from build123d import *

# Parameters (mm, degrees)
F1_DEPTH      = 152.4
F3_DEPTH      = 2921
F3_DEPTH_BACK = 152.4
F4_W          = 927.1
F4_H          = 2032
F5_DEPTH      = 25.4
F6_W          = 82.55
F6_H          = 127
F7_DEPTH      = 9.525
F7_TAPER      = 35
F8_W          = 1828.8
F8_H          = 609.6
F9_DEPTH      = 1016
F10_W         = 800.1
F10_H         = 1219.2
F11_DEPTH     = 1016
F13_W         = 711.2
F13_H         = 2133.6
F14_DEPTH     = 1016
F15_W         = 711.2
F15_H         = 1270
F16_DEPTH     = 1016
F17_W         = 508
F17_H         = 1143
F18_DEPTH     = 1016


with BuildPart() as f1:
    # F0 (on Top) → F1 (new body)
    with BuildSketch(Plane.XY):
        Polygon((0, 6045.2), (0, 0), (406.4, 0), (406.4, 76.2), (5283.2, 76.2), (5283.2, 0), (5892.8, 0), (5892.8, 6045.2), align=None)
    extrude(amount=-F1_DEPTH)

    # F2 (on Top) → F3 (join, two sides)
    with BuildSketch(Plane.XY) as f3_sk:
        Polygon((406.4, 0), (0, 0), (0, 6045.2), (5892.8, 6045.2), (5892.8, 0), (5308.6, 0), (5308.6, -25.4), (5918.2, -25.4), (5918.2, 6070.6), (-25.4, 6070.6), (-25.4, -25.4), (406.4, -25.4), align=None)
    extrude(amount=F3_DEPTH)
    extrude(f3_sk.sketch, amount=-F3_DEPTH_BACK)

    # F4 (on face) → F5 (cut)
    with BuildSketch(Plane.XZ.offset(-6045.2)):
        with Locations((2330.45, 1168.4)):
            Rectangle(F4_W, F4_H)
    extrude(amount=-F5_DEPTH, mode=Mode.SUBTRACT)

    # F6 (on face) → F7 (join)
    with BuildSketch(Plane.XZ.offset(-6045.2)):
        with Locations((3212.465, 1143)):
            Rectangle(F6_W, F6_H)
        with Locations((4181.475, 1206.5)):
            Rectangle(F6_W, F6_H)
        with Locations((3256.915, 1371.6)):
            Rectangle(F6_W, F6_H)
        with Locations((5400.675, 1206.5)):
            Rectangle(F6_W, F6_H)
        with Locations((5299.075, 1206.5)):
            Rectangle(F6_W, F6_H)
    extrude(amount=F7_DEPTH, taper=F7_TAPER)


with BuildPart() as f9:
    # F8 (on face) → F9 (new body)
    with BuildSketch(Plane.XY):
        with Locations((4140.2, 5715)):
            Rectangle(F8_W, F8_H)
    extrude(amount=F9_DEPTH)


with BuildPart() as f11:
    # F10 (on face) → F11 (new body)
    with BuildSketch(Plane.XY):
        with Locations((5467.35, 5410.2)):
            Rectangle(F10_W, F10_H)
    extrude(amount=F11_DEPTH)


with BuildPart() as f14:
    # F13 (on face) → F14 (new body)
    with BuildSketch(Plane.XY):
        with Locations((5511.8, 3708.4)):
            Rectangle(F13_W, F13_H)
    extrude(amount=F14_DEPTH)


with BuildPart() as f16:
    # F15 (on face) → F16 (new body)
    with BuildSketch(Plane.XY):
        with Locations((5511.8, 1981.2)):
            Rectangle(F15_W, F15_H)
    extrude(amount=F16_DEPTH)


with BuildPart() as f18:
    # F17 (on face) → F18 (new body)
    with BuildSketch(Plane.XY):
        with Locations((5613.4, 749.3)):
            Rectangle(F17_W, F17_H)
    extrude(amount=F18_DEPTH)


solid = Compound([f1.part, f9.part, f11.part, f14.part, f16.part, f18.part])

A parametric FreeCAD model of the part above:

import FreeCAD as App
import Part
import Sketcher
Q = App.Units.Quantity

doc = App.newDocument("Part")
body = doc.addObject("PartDesign::Body", "Body")

# Sketch on XY plane
sketch1 = doc.addObject("Sketcher::SketchObject", "Sketch")
body.addObject(sketch1)
sketch1.AttachmentSupport = (doc.XY_Plane, [""])
sketch1.MapMode = "FlatFace"
sketch1.addGeometry([
    Part.LineSegment(App.Vector(0, 6045.2, 0), App.Vector(0, 0, 0)),  # 0
    Part.LineSegment(App.Vector(0, 0, 0), App.Vector(406.4, 0, 0)),  # 1
    Part.LineSegment(App.Vector(406.4, 0, 0), App.Vector(406.4, 76.2, 0)),  # 2
    Part.LineSegment(App.Vector(406.4, 76.2, 0), App.Vector(5283.2, 76.2, 0)),  # 3
    Part.LineSegment(App.Vector(5283.2, 76.2, 0), App.Vector(5283.2, 0, 0)),  # 4
    Part.LineSegment(App.Vector(5283.2, 0, 0), App.Vector(5892.8, 0, 0)),  # 5
    Part.LineSegment(App.Vector(5892.8, 0, 0), App.Vector(5892.8, 6045.2, 0)),  # 6
    Part.LineSegment(App.Vector(5892.8, 6045.2, 0), App.Vector(0, 6045.2, 0)),  # 7
], False)
sketch1.addConstraint([
    Sketcher.Constraint("Coincident", 0, 2, 1, 1),
    Sketcher.Constraint("Coincident", 1, 2, 2, 1),
    Sketcher.Constraint("Coincident", 2, 2, 3, 1),
    Sketcher.Constraint("Coincident", 3, 2, 4, 1),
    Sketcher.Constraint("Coincident", 4, 2, 5, 1),
    Sketcher.Constraint("Coincident", 5, 2, 6, 1),
    Sketcher.Constraint("Coincident", 6, 2, 7, 1),
    Sketcher.Constraint("Coincident", 7, 2, 0, 1),
    Sketcher.Constraint("Vertical", 0),
    Sketcher.Constraint("Horizontal", 1),
    Sketcher.Constraint("Vertical", 2),
    Sketcher.Constraint("Horizontal", 3),
    Sketcher.Constraint("Vertical", 4),
    Sketcher.Constraint("Horizontal", 5),
    Sketcher.Constraint("Vertical", 6),
    Sketcher.Constraint("Horizontal", 7),
    Sketcher.Constraint("Coincident", 0, 2, -1, 1),
    Sketcher.Constraint("PointOnObject", 4, 2, -1),
    Sketcher.Constraint("DistanceX", 1, 1, 1, 2, Q("16 in")),
    Sketcher.Constraint("DistanceX", 3, 1, 3, 2, Q("192 in")),
    Sketcher.Constraint("DistanceX", 5, 1, 5, 2, Q("24 in")),
    Sketcher.Constraint("DistanceY", 0, 2, 0, 1, Q("238 in")),
    Sketcher.Constraint("DistanceY", 2, 1, 2, 2, Q("3 in")),
])
pad1 = doc.addObject("PartDesign::Pad", "Pad")
body.addObject(pad1)
pad1.Profile = sketch1
pad1.Length = Q("6 in")
pad1.Reversed = True

# Sketch on XY plane
sketch2 = doc.addObject("Sketcher::SketchObject", "Sketch001")
body.addObject(sketch2)
sketch2.AttachmentSupport = (doc.XY_Plane, [""])
sketch2.MapMode = "FlatFace"
sketch2.addGeometry([
    Part.LineSegment(App.Vector(406.4, 0, 0), App.Vector(0, 0, 0)),  # 0
    Part.LineSegment(App.Vector(0, 0, 0), App.Vector(0, 6045.2, 0)),  # 1
    Part.LineSegment(App.Vector(0, 6045.2, 0), App.Vector(5892.8, 6045.2, 0)),  # 2
    Part.LineSegment(App.Vector(5892.8, 6045.2, 0), App.Vector(5892.8, 0, 0)),  # 3
    Part.LineSegment(App.Vector(5892.8, 0, 0), App.Vector(5308.6, 0, 0)),  # 4
    Part.LineSegment(App.Vector(5308.6, 0, 0), App.Vector(5308.6, -25.4, 0)),  # 5
    Part.LineSegment(App.Vector(5308.6, -25.4, 0), App.Vector(5918.2, -25.4, 0)),  # 6
    Part.LineSegment(App.Vector(5918.2, -25.4, 0), App.Vector(5918.2, 6070.6, 0)),  # 7
    Part.LineSegment(App.Vector(5918.2, 6070.6, 0), App.Vector(-25.4, 6070.6, 0)),  # 8
    Part.LineSegment(App.Vector(-25.4, 6070.6, 0), App.Vector(-25.4, -25.4, 0)),  # 9
    Part.LineSegment(App.Vector(-25.4, -25.4, 0), App.Vector(406.4, -25.4, 0)),  # 10
    Part.LineSegment(App.Vector(406.4, -25.4, 0), App.Vector(406.4, 0, 0)),  # 11
], False)
sketch2.addConstraint([
    Sketcher.Constraint("Coincident", 0, 2, 1, 1),
    Sketcher.Constraint("Coincident", 1, 2, 2, 1),
    Sketcher.Constraint("Coincident", 2, 2, 3, 1),
    Sketcher.Constraint("Coincident", 3, 2, 4, 1),
    Sketcher.Constraint("Coincident", 4, 2, 5, 1),
    Sketcher.Constraint("Coincident", 5, 2, 6, 1),
    Sketcher.Constraint("Coincident", 6, 2, 7, 1),
    Sketcher.Constraint("Coincident", 7, 2, 8, 1),
    Sketcher.Constraint("Coincident", 8, 2, 9, 1),
    Sketcher.Constraint("Coincident", 9, 2, 10, 1),
    Sketcher.Constraint("Coincident", 10, 2, 11, 1),
    Sketcher.Constraint("Coincident", 11, 2, 0, 1),
    Sketcher.Constraint("Horizontal", 0),
    Sketcher.Constraint("Vertical", 1),
    Sketcher.Constraint("Horizontal", 2),
    Sketcher.Constraint("Vertical", 3),
    Sketcher.Constraint("Horizontal", 4),
    Sketcher.Constraint("Vertical", 5),
    Sketcher.Constraint("Horizontal", 6),
    Sketcher.Constraint("Vertical", 7),
    Sketcher.Constraint("Horizontal", 8),
    Sketcher.Constraint("Vertical", 9),
    Sketcher.Constraint("Horizontal", 10),
    Sketcher.Constraint("Vertical", 11),
    Sketcher.Constraint("Coincident", 0, 2, -1, 1),
    Sketcher.Constraint("PointOnObject", 3, 2, -1),
    Sketcher.Constraint("Horizontal", 6, 2, 9, 2),
    Sketcher.Constraint("DistanceX", 0, 2, 0, 1, Q("16 in")),
    Sketcher.Constraint("DistanceX", 2, 1, 2, 2, Q("232 in")),
    Sketcher.Constraint("DistanceX", 4, 2, 4, 1, Q("23 in")),
    Sketcher.Constraint("DistanceX", 6, 1, 6, 2, Q("24 in")),
    Sketcher.Constraint("DistanceX", 8, 2, 8, 1, Q("234 in")),
    Sketcher.Constraint("DistanceY", 1, 1, 1, 2, Q("238 in")),
    Sketcher.Constraint("DistanceY", 5, 2, 5, 1, Q("1 in")),
    Sketcher.Constraint("DistanceY", 7, 1, 7, 2, Q("240 in")),
])
pad2 = doc.addObject("PartDesign::Pad", "Pad001")
body.addObject(pad2)
pad2.Profile = sketch2
pad2.Type = "TwoLengths"
pad2.Length = Q("115 in")
pad2.Length2 = Q("6 in")

# Sketch on XZ plane
sketch3 = doc.addObject("Sketcher::SketchObject", "Sketch002")
body.addObject(sketch3)
sketch3.AttachmentSupport = (doc.XZ_Plane, [""])
sketch3.MapMode = "FlatFace"
sketch3.AttachmentOffset = App.Placement(App.Vector(0, 0, -238 * 25.4), App.Rotation())
sketch3.addGeometry([
    Part.LineSegment(App.Vector(1866.9, 2184.4, 0), App.Vector(1866.9, 152.4, 0)),
    Part.LineSegment(App.Vector(1866.9, 152.4, 0), App.Vector(2794, 152.4, 0)),
    Part.LineSegment(App.Vector(2794, 152.4, 0), App.Vector(2794, 2184.4, 0)),
    Part.LineSegment(App.Vector(2794, 2184.4, 0), App.Vector(1866.9, 2184.4, 0)),
], False)
sketch3.addConstraint([
    Sketcher.Constraint("Coincident", 0, 2, 1, 1),
    Sketcher.Constraint("Coincident", 1, 2, 2, 1),
    Sketcher.Constraint("Coincident", 2, 2, 3, 1),
    Sketcher.Constraint("Coincident", 3, 2, 0, 1),
    Sketcher.Constraint("Vertical", 0),
    Sketcher.Constraint("Horizontal", 1),
    Sketcher.Constraint("Vertical", 2),
    Sketcher.Constraint("Horizontal", 3),
    Sketcher.Constraint("DistanceY", 0, 2, 0, 1, Q("80 in")),
    Sketcher.Constraint("DistanceX", 1, 1, 1, 2, Q("36.5 in")),
    Sketcher.Constraint("DistanceY", -1, 1, 0, 2, Q("6 in")),
    Sketcher.Constraint("DistanceX", -1, 1, 1, 2, Q("110 in")),
])
pocket1 = doc.addObject("PartDesign::Pocket", "Pocket")
body.addObject(pocket1)
pocket1.Profile = sketch3
pocket1.Length = Q("1 in")

# Sketch on XZ plane
sketch4 = doc.addObject("Sketcher::SketchObject", "Sketch003")
body.addObject(sketch4)
sketch4.AttachmentSupport = (doc.XZ_Plane, [""])
sketch4.MapMode = "FlatFace"
sketch4.AttachmentOffset = App.Placement(App.Vector(0, 0, -238 * 25.4), App.Rotation())
sketch4.addGeometry([
    Part.LineSegment(App.Vector(3171.19, 1206.5, 0), App.Vector(3171.19, 1079.5, 0)),  # 0
    Part.LineSegment(App.Vector(3171.19, 1079.5, 0), App.Vector(3253.74, 1079.5, 0)),  # 1
    Part.LineSegment(App.Vector(3253.74, 1079.5, 0), App.Vector(3253.74, 1206.5, 0)),  # 2
    Part.LineSegment(App.Vector(3253.74, 1206.5, 0), App.Vector(3171.19, 1206.5, 0)),  # 3
    Part.LineSegment(App.Vector(4140.2, 1270, 0), App.Vector(4140.2, 1143, 0)),  # 4
    Part.LineSegment(App.Vector(4140.2, 1143, 0), App.Vector(4222.75, 1143, 0)),  # 5
    Part.LineSegment(App.Vector(4222.75, 1143, 0), App.Vector(4222.75, 1270, 0)),  # 6
    Part.LineSegment(App.Vector(4222.75, 1270, 0), App.Vector(4140.2, 1270, 0)),  # 7
    Part.LineSegment(App.Vector(3215.64, 1435.1, 0), App.Vector(3215.64, 1308.1, 0)),  # 8
    Part.LineSegment(App.Vector(3215.64, 1308.1, 0), App.Vector(3298.19, 1308.1, 0)),  # 9
    Part.LineSegment(App.Vector(3298.19, 1308.1, 0), App.Vector(3298.19, 1435.1, 0)),  # 10
    Part.LineSegment(App.Vector(3298.19, 1435.1, 0), App.Vector(3215.64, 1435.1, 0)),  # 11
    Part.LineSegment(App.Vector(5359.4, 1270, 0), App.Vector(5359.4, 1143, 0)),  # 12
    Part.LineSegment(App.Vector(5359.4, 1143, 0), App.Vector(5441.95, 1143, 0)),  # 13
    Part.LineSegment(App.Vector(5441.95, 1143, 0), App.Vector(5441.95, 1270, 0)),  # 14
    Part.LineSegment(App.Vector(5441.95, 1270, 0), App.Vector(5359.4, 1270, 0)),  # 15
    Part.LineSegment(App.Vector(5257.8, 1270, 0), App.Vector(5257.8, 1143, 0)),  # 16
    Part.LineSegment(App.Vector(5257.8, 1143, 0), App.Vector(5340.35, 1143, 0)),  # 17
    Part.LineSegment(App.Vector(5340.35, 1143, 0), App.Vector(5340.35, 1270, 0)),  # 18
    Part.LineSegment(App.Vector(5340.35, 1270, 0), App.Vector(5257.8, 1270, 0)),  # 19
], False)
sketch4.addConstraint([
    Sketcher.Constraint("Coincident", 0, 2, 1, 1),
    Sketcher.Constraint("Coincident", 1, 2, 2, 1),
    Sketcher.Constraint("Coincident", 2, 2, 3, 1),
    Sketcher.Constraint("Coincident", 3, 2, 0, 1),
    Sketcher.Constraint("Coincident", 4, 2, 5, 1),
    Sketcher.Constraint("Coincident", 5, 2, 6, 1),
    Sketcher.Constraint("Coincident", 6, 2, 7, 1),
    Sketcher.Constraint("Coincident", 7, 2, 4, 1),
    Sketcher.Constraint("Coincident", 8, 2, 9, 1),
    Sketcher.Constraint("Coincident", 9, 2, 10, 1),
    Sketcher.Constraint("Coincident", 10, 2, 11, 1),
    Sketcher.Constraint("Coincident", 11, 2, 8, 1),
    Sketcher.Constraint("Coincident", 12, 2, 13, 1),
    Sketcher.Constraint("Coincident", 13, 2, 14, 1),
    Sketcher.Constraint("Coincident", 14, 2, 15, 1),
    Sketcher.Constraint("Coincident", 15, 2, 12, 1),
    Sketcher.Constraint("Coincident", 16, 2, 17, 1),
    Sketcher.Constraint("Coincident", 17, 2, 18, 1),
    Sketcher.Constraint("Coincident", 18, 2, 19, 1),
    Sketcher.Constraint("Coincident", 19, 2, 16, 1),
    Sketcher.Constraint("Vertical", 0),
    Sketcher.Constraint("Horizontal", 1),
    Sketcher.Constraint("Vertical", 2),
    Sketcher.Constraint("Horizontal", 3),
    Sketcher.Constraint("Vertical", 4),
    Sketcher.Constraint("Horizontal", 5),
    Sketcher.Constraint("Vertical", 6),
    Sketcher.Constraint("Horizontal", 7),
    Sketcher.Constraint("Vertical", 8),
    Sketcher.Constraint("Horizontal", 9),
    Sketcher.Constraint("Vertical", 10),
    Sketcher.Constraint("Horizontal", 11),
    Sketcher.Constraint("Vertical", 12),
    Sketcher.Constraint("Horizontal", 13),
    Sketcher.Constraint("Vertical", 14),
    Sketcher.Constraint("Horizontal", 15),
    Sketcher.Constraint("Vertical", 16),
    Sketcher.Constraint("Horizontal", 17),
    Sketcher.Constraint("Vertical", 18),
    Sketcher.Constraint("Horizontal", 19),
    Sketcher.Constraint("Horizontal", 5, 2, 12, 2),
    Sketcher.Constraint("Horizontal", 7, 2, 14, 2),
    Sketcher.Constraint("Horizontal", 13, 2, 16, 2),
    Sketcher.Constraint("Horizontal", 15, 2, 18, 2),
    Sketcher.Constraint("Equal", 3, 5),
    Sketcher.Constraint("Equal", 7, 9),
    Sketcher.Constraint("Equal", 11, 13),
    Sketcher.Constraint("Equal", 15, 17),
    Sketcher.Constraint("Equal", 2, 4),
    Sketcher.Constraint("Equal", 6, 8),
    Sketcher.Constraint("DistanceY", 0, 2, 0, 1, Q("5 in")),
    Sketcher.Constraint("DistanceX", -1, 1, 4, 2, Q("163 in")),
    Sketcher.Constraint("DistanceY", -1, 1, 4, 2, Q("45 in")),
    Sketcher.Constraint("DistanceX", -1, 1, 12, 2, Q("211 in")),
    Sketcher.Constraint("DistanceX", -1, 1, 16, 2, Q("207 in")),
    Sketcher.Constraint("DistanceY", 2, 2, 8, 2, Q("4 in")),
    Sketcher.Constraint("DistanceX", 3, 2, 9, 2, Q("5 in")),
    Sketcher.Constraint("DistanceX", 1, 1, 1, 2, Q("3.25 in")),
    Sketcher.Constraint("DistanceY", -1, 1, 0, 2, Q("42.5 in")),
    Sketcher.Constraint("DistanceX", -1, 1, 1, 2, Q("128.1 in")),
])
pad3 = doc.addObject("PartDesign::Pad", "Pad002")
body.addObject(pad3)
pad3.Profile = sketch4
pad3.Length = Q("0.375 in")
pad3.TaperAngle = -35
body2 = doc.addObject("PartDesign::Body", "Body001")

# Sketch on XY plane
sketch5 = doc.addObject("Sketcher::SketchObject", "Sketch004")
body2.addObject(sketch5)
sketch5.AttachmentSupport = (doc.getObject("XY_Plane001"), [""])
sketch5.MapMode = "FlatFace"
sketch5.addGeometry([
    Part.LineSegment(App.Vector(3225.8, 6019.8, 0), App.Vector(3225.8, 5410.2, 0)),
    Part.LineSegment(App.Vector(3225.8, 5410.2, 0), App.Vector(5054.6, 5410.2, 0)),
    Part.LineSegment(App.Vector(5054.6, 5410.2, 0), App.Vector(5054.6, 6019.8, 0)),
    Part.LineSegment(App.Vector(5054.6, 6019.8, 0), App.Vector(3225.8, 6019.8, 0)),
], False)
sketch5.addConstraint([
    Sketcher.Constraint("Coincident", 0, 2, 1, 1),
    Sketcher.Constraint("Coincident", 1, 2, 2, 1),
    Sketcher.Constraint("Coincident", 2, 2, 3, 1),
    Sketcher.Constraint("Coincident", 3, 2, 0, 1),
    Sketcher.Constraint("Vertical", 0),
    Sketcher.Constraint("Horizontal", 1),
    Sketcher.Constraint("Vertical", 2),
    Sketcher.Constraint("Horizontal", 3),
    Sketcher.Constraint("DistanceX", 1, 1, 1, 2, Q("72 in")),
    Sketcher.Constraint("DistanceY", 0, 2, 0, 1, Q("24 in")),
    Sketcher.Constraint("DistanceX", -1, 1, 0, 2, Q("127 in")),
    Sketcher.Constraint("DistanceY", -1, 1, 0, 2, Q("213 in")),
])
pad4 = doc.addObject("PartDesign::Pad", "Pad003")
body2.addObject(pad4)
pad4.Profile = sketch5
pad4.Length = Q("40 in")
body3 = doc.addObject("PartDesign::Body", "Body002")

# Sketch on XY plane
sketch6 = doc.addObject("Sketcher::SketchObject", "Sketch005")
body3.addObject(sketch6)
sketch6.AttachmentSupport = (doc.getObject("XY_Plane002"), [""])
sketch6.MapMode = "FlatFace"
sketch6.addGeometry([
    Part.LineSegment(App.Vector(5067.3, 6019.8, 0), App.Vector(5067.3, 4800.6, 0)),
    Part.LineSegment(App.Vector(5067.3, 4800.6, 0), App.Vector(5867.4, 4800.6, 0)),
    Part.LineSegment(App.Vector(5867.4, 4800.6, 0), App.Vector(5867.4, 6019.8, 0)),
    Part.LineSegment(App.Vector(5867.4, 6019.8, 0), App.Vector(5067.3, 6019.8, 0)),
], False)
sketch6.addConstraint([
    Sketcher.Constraint("Coincident", 0, 2, 1, 1),
    Sketcher.Constraint("Coincident", 1, 2, 2, 1),
    Sketcher.Constraint("Coincident", 2, 2, 3, 1),
    Sketcher.Constraint("Coincident", 3, 2, 0, 1),
    Sketcher.Constraint("Vertical", 0),
    Sketcher.Constraint("Horizontal", 1),
    Sketcher.Constraint("Vertical", 2),
    Sketcher.Constraint("Horizontal", 3),
    Sketcher.Constraint("DistanceY", 0, 2, 0, 1, Q("48 in")),
    Sketcher.Constraint("DistanceX", 1, 1, 1, 2, Q("31.5 in")),
    Sketcher.Constraint("DistanceY", -1, 1, 0, 2, Q("189 in")),
    Sketcher.Constraint("DistanceX", -1, 1, 1, 2, Q("231 in")),
])
pad5 = doc.addObject("PartDesign::Pad", "Pad004")
body3.addObject(pad5)
pad5.Profile = sketch6
pad5.Length = Q("40 in")
body4 = doc.addObject("PartDesign::Body", "Body003")

# Sketch on XY plane
sketch7 = doc.addObject("Sketcher::SketchObject", "Sketch006")
body4.addObject(sketch7)
sketch7.AttachmentSupport = (doc.getObject("XY_Plane003"), [""])
sketch7.MapMode = "FlatFace"
sketch7.addGeometry([
    Part.LineSegment(App.Vector(5156.2, 4775.2, 0), App.Vector(5156.2, 2641.6, 0)),
    Part.LineSegment(App.Vector(5156.2, 2641.6, 0), App.Vector(5867.4, 2641.6, 0)),
    Part.LineSegment(App.Vector(5867.4, 2641.6, 0), App.Vector(5867.4, 4775.2, 0)),
    Part.LineSegment(App.Vector(5867.4, 4775.2, 0), App.Vector(5156.2, 4775.2, 0)),
], False)
sketch7.addConstraint([
    Sketcher.Constraint("Coincident", 0, 2, 1, 1),
    Sketcher.Constraint("Coincident", 1, 2, 2, 1),
    Sketcher.Constraint("Coincident", 2, 2, 3, 1),
    Sketcher.Constraint("Coincident", 3, 2, 0, 1),
    Sketcher.Constraint("Vertical", 0),
    Sketcher.Constraint("Horizontal", 1),
    Sketcher.Constraint("Vertical", 2),
    Sketcher.Constraint("Horizontal", 3),
    Sketcher.Constraint("DistanceX", 1, 1, 1, 2, Q("28 in")),
    Sketcher.Constraint("DistanceY", 0, 2, 0, 1, Q("84 in")),
    Sketcher.Constraint("DistanceX", -1, 1, 0, 2, Q("203 in")),
    Sketcher.Constraint("DistanceY", -1, 1, 0, 2, Q("104 in")),
])
pad6 = doc.addObject("PartDesign::Pad", "Pad005")
body4.addObject(pad6)
pad6.Profile = sketch7
pad6.Length = Q("40 in")
body5 = doc.addObject("PartDesign::Body", "Body004")

# Sketch on XY plane
sketch8 = doc.addObject("Sketcher::SketchObject", "Sketch007")
body5.addObject(sketch8)
sketch8.AttachmentSupport = (doc.getObject("XY_Plane004"), [""])
sketch8.MapMode = "FlatFace"
sketch8.addGeometry([
    Part.LineSegment(App.Vector(5156.2, 2616.2, 0), App.Vector(5156.2, 1346.2, 0)),
    Part.LineSegment(App.Vector(5156.2, 1346.2, 0), App.Vector(5867.4, 1346.2, 0)),
    Part.LineSegment(App.Vector(5867.4, 1346.2, 0), App.Vector(5867.4, 2616.2, 0)),
    Part.LineSegment(App.Vector(5867.4, 2616.2, 0), App.Vector(5156.2, 2616.2, 0)),
], False)
sketch8.addConstraint([
    Sketcher.Constraint("Coincident", 0, 2, 1, 1),
    Sketcher.Constraint("Coincident", 1, 2, 2, 1),
    Sketcher.Constraint("Coincident", 2, 2, 3, 1),
    Sketcher.Constraint("Coincident", 3, 2, 0, 1),
    Sketcher.Constraint("Vertical", 0),
    Sketcher.Constraint("Horizontal", 1),
    Sketcher.Constraint("Vertical", 2),
    Sketcher.Constraint("Horizontal", 3),
    Sketcher.Constraint("DistanceX", 1, 1, 1, 2, Q("28 in")),
    Sketcher.Constraint("DistanceY", 0, 2, 0, 1, Q("50 in")),
    Sketcher.Constraint("DistanceX", -1, 1, 0, 2, Q("203 in")),
    Sketcher.Constraint("DistanceY", -1, 1, 0, 2, Q("53 in")),
])
pad7 = doc.addObject("PartDesign::Pad", "Pad006")
body5.addObject(pad7)
pad7.Profile = sketch8
pad7.Length = Q("40 in")
body6 = doc.addObject("PartDesign::Body", "Body005")

# Sketch on XY plane
sketch9 = doc.addObject("Sketcher::SketchObject", "Sketch008")
body6.addObject(sketch9)
sketch9.AttachmentSupport = (doc.getObject("XY_Plane005"), [""])
sketch9.MapMode = "FlatFace"
sketch9.addGeometry([
    Part.LineSegment(App.Vector(5359.4, 1320.8, 0), App.Vector(5359.4, 177.8, 0)),
    Part.LineSegment(App.Vector(5359.4, 177.8, 0), App.Vector(5867.4, 177.8, 0)),
    Part.LineSegment(App.Vector(5867.4, 177.8, 0), App.Vector(5867.4, 1320.8, 0)),
    Part.LineSegment(App.Vector(5867.4, 1320.8, 0), App.Vector(5359.4, 1320.8, 0)),
], False)
sketch9.addConstraint([
    Sketcher.Constraint("Coincident", 0, 2, 1, 1),
    Sketcher.Constraint("Coincident", 1, 2, 2, 1),
    Sketcher.Constraint("Coincident", 2, 2, 3, 1),
    Sketcher.Constraint("Coincident", 3, 2, 0, 1),
    Sketcher.Constraint("Vertical", 0),
    Sketcher.Constraint("Horizontal", 1),
    Sketcher.Constraint("Vertical", 2),
    Sketcher.Constraint("Horizontal", 3),
    Sketcher.Constraint("DistanceX", 1, 1, 1, 2, Q("20 in")),
    Sketcher.Constraint("DistanceY", 0, 2, 0, 1, Q("45 in")),
    Sketcher.Constraint("DistanceX", -1, 1, 0, 2, Q("211 in")),
    Sketcher.Constraint("DistanceY", -1, 1, 0, 2, Q("7 in")),
])
pad8 = doc.addObject("PartDesign::Pad", "Pad007")
body6.addObject(pad8)
pad8.Profile = sketch9
pad8.Length = Q("40 in")

doc.recompute()
